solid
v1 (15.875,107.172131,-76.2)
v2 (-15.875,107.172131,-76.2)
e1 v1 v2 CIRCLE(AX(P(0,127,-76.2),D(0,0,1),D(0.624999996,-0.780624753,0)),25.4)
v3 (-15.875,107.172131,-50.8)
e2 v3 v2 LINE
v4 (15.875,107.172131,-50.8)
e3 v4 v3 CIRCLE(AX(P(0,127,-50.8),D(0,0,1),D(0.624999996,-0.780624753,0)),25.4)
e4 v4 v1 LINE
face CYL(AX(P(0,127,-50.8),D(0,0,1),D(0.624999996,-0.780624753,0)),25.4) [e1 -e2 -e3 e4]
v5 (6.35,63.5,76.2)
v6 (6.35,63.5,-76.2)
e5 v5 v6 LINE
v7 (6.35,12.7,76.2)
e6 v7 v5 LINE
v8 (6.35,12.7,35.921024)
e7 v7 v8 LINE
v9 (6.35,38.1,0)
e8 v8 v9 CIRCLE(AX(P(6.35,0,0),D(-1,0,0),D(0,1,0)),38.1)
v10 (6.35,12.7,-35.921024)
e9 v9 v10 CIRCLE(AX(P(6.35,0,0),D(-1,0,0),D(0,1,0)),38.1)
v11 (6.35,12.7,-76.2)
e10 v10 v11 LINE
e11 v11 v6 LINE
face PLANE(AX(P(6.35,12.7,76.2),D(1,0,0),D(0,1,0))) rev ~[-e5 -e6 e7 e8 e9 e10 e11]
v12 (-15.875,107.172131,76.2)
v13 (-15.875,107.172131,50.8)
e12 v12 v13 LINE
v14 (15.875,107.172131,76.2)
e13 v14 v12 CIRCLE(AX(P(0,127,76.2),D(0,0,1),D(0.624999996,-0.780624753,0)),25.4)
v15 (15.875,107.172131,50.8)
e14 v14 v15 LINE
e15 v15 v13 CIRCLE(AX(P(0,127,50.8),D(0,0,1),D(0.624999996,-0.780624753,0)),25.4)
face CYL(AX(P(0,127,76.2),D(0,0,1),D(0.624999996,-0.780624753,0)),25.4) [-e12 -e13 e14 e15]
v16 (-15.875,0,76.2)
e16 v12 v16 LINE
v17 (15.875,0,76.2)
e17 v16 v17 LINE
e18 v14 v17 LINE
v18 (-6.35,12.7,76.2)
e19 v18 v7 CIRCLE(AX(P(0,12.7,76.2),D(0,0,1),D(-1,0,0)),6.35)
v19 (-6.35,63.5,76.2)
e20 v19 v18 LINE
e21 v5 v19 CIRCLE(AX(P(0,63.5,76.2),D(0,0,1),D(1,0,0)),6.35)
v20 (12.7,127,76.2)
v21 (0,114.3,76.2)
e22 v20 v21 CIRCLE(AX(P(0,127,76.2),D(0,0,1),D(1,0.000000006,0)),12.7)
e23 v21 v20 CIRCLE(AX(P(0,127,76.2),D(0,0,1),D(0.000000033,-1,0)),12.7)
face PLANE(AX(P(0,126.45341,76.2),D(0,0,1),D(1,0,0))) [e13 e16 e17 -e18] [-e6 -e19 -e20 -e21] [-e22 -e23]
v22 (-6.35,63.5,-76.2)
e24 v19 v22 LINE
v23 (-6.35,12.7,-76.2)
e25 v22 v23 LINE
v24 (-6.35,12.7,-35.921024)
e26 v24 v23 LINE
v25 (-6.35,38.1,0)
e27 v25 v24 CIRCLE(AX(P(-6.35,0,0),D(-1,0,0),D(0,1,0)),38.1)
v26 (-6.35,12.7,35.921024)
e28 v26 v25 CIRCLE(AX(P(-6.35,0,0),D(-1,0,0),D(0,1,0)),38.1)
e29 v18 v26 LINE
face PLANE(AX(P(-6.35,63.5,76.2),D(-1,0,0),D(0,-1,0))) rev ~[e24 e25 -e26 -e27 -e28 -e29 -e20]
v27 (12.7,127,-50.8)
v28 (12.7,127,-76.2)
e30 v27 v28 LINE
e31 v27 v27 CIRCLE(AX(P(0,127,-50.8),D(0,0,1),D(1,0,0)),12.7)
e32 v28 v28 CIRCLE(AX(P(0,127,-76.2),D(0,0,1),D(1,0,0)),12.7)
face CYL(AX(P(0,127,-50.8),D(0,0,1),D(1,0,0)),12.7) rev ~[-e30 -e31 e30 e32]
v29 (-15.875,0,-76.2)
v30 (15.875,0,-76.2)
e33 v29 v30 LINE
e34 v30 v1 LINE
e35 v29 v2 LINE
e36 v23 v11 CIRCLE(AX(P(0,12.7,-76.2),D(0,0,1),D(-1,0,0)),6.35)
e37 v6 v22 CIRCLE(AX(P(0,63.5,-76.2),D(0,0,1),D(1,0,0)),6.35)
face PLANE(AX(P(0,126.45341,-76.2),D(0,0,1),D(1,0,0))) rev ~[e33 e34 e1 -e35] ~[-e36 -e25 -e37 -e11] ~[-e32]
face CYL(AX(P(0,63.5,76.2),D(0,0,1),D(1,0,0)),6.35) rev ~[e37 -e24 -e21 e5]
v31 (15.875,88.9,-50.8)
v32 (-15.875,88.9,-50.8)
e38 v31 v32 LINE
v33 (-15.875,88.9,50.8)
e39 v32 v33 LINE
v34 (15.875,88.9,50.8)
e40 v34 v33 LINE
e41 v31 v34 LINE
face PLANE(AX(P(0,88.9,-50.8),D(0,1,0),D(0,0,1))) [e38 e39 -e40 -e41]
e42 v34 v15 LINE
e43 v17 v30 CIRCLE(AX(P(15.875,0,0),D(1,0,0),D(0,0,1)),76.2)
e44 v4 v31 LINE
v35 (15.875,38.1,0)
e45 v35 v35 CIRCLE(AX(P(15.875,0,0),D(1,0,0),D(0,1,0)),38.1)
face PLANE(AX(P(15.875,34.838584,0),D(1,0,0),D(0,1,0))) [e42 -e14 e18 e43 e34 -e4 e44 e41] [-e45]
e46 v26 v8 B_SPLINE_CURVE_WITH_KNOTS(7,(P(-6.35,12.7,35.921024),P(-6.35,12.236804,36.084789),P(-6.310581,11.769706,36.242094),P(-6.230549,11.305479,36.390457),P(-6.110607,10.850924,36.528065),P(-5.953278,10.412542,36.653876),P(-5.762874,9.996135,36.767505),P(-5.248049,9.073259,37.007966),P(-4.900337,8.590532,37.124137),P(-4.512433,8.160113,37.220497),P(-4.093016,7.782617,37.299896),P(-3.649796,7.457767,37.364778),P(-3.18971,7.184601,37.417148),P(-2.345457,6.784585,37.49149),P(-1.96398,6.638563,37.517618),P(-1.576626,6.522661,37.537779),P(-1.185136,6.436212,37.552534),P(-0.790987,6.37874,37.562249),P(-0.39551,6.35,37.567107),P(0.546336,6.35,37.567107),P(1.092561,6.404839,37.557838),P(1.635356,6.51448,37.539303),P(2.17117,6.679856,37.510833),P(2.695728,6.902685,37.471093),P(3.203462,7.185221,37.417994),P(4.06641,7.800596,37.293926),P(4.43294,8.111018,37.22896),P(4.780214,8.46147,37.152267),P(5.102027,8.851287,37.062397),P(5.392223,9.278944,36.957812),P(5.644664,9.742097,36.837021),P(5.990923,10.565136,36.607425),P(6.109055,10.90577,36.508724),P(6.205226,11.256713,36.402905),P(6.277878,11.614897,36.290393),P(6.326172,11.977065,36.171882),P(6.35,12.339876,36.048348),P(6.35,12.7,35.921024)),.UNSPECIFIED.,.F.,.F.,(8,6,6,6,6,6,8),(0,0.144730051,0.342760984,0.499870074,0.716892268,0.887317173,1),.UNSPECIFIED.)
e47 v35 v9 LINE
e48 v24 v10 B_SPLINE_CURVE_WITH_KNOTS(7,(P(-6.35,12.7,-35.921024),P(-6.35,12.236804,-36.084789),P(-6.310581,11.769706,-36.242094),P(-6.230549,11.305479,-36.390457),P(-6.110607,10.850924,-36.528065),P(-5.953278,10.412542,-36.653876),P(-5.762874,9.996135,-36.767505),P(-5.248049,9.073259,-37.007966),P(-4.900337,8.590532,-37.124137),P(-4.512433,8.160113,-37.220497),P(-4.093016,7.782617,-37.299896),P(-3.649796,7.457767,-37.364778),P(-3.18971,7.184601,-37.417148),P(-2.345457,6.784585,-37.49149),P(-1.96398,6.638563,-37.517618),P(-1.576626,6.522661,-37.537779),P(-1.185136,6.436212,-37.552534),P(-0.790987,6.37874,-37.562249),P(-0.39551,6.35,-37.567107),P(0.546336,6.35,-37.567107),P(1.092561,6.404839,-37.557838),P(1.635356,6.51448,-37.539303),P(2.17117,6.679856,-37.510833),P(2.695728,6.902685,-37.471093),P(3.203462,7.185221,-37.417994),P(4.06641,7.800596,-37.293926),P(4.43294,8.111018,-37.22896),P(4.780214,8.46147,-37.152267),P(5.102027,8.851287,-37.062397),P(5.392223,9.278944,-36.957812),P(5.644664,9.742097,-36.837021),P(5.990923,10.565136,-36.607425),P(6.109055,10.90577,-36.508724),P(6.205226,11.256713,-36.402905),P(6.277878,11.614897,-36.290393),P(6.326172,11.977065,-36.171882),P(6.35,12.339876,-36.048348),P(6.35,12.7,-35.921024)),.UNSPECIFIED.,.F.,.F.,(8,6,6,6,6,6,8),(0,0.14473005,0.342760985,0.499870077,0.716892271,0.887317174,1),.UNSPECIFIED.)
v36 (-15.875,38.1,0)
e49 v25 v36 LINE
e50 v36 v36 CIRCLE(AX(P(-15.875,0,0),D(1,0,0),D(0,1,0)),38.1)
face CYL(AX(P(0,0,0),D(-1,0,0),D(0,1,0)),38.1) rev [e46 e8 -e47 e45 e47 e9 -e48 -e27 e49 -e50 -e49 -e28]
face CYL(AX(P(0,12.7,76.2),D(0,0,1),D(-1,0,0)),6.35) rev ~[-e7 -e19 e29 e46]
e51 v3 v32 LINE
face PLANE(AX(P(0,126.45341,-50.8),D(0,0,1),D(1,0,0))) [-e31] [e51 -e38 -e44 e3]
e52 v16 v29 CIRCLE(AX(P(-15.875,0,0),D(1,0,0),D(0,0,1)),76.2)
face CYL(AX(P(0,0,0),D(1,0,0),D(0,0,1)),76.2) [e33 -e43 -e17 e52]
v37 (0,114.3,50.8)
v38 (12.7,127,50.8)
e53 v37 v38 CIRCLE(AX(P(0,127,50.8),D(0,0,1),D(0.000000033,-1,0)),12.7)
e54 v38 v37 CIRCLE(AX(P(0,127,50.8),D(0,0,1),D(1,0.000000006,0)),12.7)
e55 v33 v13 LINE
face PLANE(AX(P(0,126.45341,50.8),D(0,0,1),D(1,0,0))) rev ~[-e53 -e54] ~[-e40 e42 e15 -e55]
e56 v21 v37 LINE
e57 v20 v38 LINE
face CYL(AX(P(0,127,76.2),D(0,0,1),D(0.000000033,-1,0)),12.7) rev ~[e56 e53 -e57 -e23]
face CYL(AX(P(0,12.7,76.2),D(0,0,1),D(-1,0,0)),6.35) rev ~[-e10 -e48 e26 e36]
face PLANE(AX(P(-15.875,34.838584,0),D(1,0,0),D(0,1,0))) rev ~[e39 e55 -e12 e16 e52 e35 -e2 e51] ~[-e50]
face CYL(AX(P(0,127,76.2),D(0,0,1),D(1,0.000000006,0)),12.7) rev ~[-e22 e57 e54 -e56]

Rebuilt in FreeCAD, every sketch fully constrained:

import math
import FreeCAD as App
import Part
import Sketcher
from FreeCAD import Vector
Q = App.Units.Quantity

doc = App.newDocument("Part")
body = doc.addObject("PartDesign::Body", "Body")

# Sketch on YZ plane
sketch1 = body.newObject("Sketcher::SketchObject", "Sketch")
sketch1.AttachmentSupport = (doc.getObject("YZ_Plane"), [""])
sketch1.MapMode = "FlatFace"
sketch1.addGeometry([
    Part.LineSegment(Vector(114.3, 76.2, 0), Vector(0, 76.2, 0)),  # 0
    Part.ArcOfCircle(Part.Circle(Vector(0, 0, 0), Vector(0, 0, 1), 76.2), math.radians(90), math.radians(270)),  # 1
    Part.LineSegment(Vector(0, -76.2, 0), Vector(114.3, -76.2, 0)),  # 2
    Part.LineSegment(Vector(114.3, -76.2, 0), Vector(114.3, -50.8, 0)),  # 3
    Part.LineSegment(Vector(114.3, -50.8, 0), Vector(88.9, -50.8, 0)),  # 4
    Part.LineSegment(Vector(88.9, -50.8, 0), Vector(88.9, 50.8, 0)),  # 5
    Part.LineSegment(Vector(88.9, 50.8, 0), Vector(114.3, 50.8, 0)),  # 6
    Part.LineSegment(Vector(114.3, 50.8, 0), Vector(114.3, 76.2, 0)),  # 7
    Part.Circle(Vector(0, 0, 0), Vector(0, 0, 1), 38.1),  # 8
], False)
sketch1.addConstraint([
    Sketcher.Constraint("Tangent", 0, 2, 1, 1),
    Sketcher.Constraint("Tangent", 1, 2, 2, 1),
    Sketcher.Constraint("Coincident", 2, 2, 3, 1),
    Sketcher.Constraint("Coincident", 3, 2, 4, 1),
    Sketcher.Constraint("Coincident", 4, 2, 5, 1),
    Sketcher.Constraint("Coincident", 5, 2, 6, 1),
    Sketcher.Constraint("Coincident", 6, 2, 7, 1),
    Sketcher.Constraint("Coincident", 7, 2, 0, 1),
    Sketcher.Constraint("Horizontal", 0),
    Sketcher.Constraint("Horizontal", 2),
    Sketcher.Constraint("Vertical", 3),
    Sketcher.Constraint("Horizontal", 4),
    Sketcher.Constraint("Vertical", 5),
    Sketcher.Constraint("Horizontal", 6),
    Sketcher.Constraint("Vertical", 7),
    Sketcher.Constraint("Coincident", 1, 3, -1, 1),
    Sketcher.Constraint("Coincident", 8, 3, -1, 1),
    Sketcher.Constraint("Symmetric", 3, 2, 6, 2, -1),
    Sketcher.Constraint("Equal", 6, 3),
    Sketcher.Constraint("Diameter", 8, Q("3 in")),
    Sketcher.Constraint("Radius", 1, Q("3 in")),
    Sketcher.Constraint("DistanceX", 4, 2, 4, 1, Q("1 in")),
    Sketcher.Constraint("DistanceX", 0, 2, 0, 1, Q("4.5 in")),
])
pad1 = body.newObject("PartDesign::Pad", "Pad")
pad1.Profile = sketch1
pad1.Type = "TwoLengths"
pad1.Length = Q("0.625 in")
pad1.Length2 = Q("0.625 in")

# Sketch on XY plane
sketch2 = body.newObject("Sketcher::SketchObject", "Sketch001")
sketch2.AttachmentSupport = (doc.getObject("XY_Plane"), [""])
sketch2.MapMode = "FlatFace"
sketch2.AttachmentOffset = App.Placement(Vector(0, 0, 3 * 25.4), App.Rotation())
sketch2.addGeometry([
    Part.LineSegment(Vector(-15.875, 114.3, 0), Vector(15.875, 114.3, 0)),
    Part.LineSegment(Vector(15.875, 114.3, 0), Vector(15.875, 107.172131, 0)),
    Part.ArcOfCircle(Part.Circle(Vector(0, 127, 0), Vector(0, 0, 1), 25.4), math.radians(-51.317813), math.radians(231.317813)),
    Part.LineSegment(Vector(-15.875, 107.172131, 0), Vector(-15.875, 114.3, 0)),
], False)
sketch2.addConstraint([
    Sketcher.Constraint("Coincident", 0, 2, 1, 1),
    Sketcher.Constraint("Coincident", 1, 2, 2, 1),
    Sketcher.Constraint("Coincident", 2, 2, 3, 1),
    Sketcher.Constraint("Coincident", 3, 2, 0, 1),
    Sketcher.Constraint("Horizontal", 0),
    Sketcher.Constraint("Vertical", 1),
    Sketcher.Constraint("Vertical", 3),
    Sketcher.Constraint("Symmetric", 1, 2, 2, 2, -2),
    Sketcher.Constraint("Radius", 2, Q("1 in")),
    Sketcher.Constraint("DistanceY", -1, 1, 2, 3, Q("5 in")),
    Sketcher.Constraint("DistanceX", 0, 1, 0, 2, Q("1.25 in")),
    Sketcher.Constraint("DistanceY", -1, 1, 0, 2, Q("4.5 in")),
])
pad2 = body.newObject("PartDesign::Pad", "Pad001")
pad2.Profile = sketch2
pad2.Length = Q("1 in")
pad2.Reversed = True

# Sketch on XY plane
sketch3 = body.newObject("Sketcher::SketchObject", "Sketch002")
sketch3.AttachmentSupport = (doc.getObject("XY_Plane"), [""])
sketch3.MapMode = "FlatFace"
sketch3.AttachmentOffset = App.Placement(Vector(0, 0, 3 * 25.4), App.Rotation())
sketch3.addGeometry([
    Part.ArcOfCircle(Part.Circle(Vector(0, 127, 0), Vector(0, 0, 1), 12.7), math.radians(0), math.radians(270)),
    Part.ArcOfCircle(Part.Circle(Vector(0, 127, 0), Vector(0, 0, 1), 12.7), math.radians(-89.999998), math.radians(-0.000002)),
], False)
sketch3.addConstraint([
    Sketcher.Constraint("Tangent", 0, 1, 1, 2),
    Sketcher.Constraint("Coincident", 1, 1, 0, 2),
    Sketcher.Constraint("PointOnObject", 0, 3, -2),
    Sketcher.Constraint("PointOnObject", 1, 1, -2),
    Sketcher.Constraint("Horizontal", 1, 3, 0, 1),
    Sketcher.Constraint("Radius", 0, Q("0.5 in")),
    Sketcher.Constraint("DistanceY", -1, 1, 0, 3, Q("5 in")),
])
pocket1 = body.newObject("PartDesign::Pocket", "Pocket")
pocket1.Profile = sketch3
pocket1.Type = "ThroughAll"

# Sketch on XY plane
sketch4 = body.newObject("Sketcher::SketchObject", "Sketch003")
sketch4.AttachmentSupport = (doc.getObject("XY_Plane"), [""])
sketch4.MapMode = "FlatFace"
sketch4.AttachmentOffset = App.Placement(Vector(0, 0, -2 * 25.4), App.Rotation())
sketch4.addGeometry([
    Part.LineSegment(Vector(15.875, 114.3, 0), Vector(15.875, 107.172131, 0)),
    Part.ArcOfCircle(Part.Circle(Vector(0, 127, 0), Vector(0, 0, 1), 25.4), math.radians(-51.317813), math.radians(231.317813)),
    Part.LineSegment(Vector(-15.875, 107.172131, 0), Vector(-15.875, 114.3, 0)),
    Part.LineSegment(Vector(-15.875, 114.3, 0), Vector(15.875, 114.3, 0)),
], False)
sketch4.addConstraint([
    Sketcher.Constraint("Coincident", 0, 2, 1, 1),
    Sketcher.Constraint("Coincident", 1, 2, 2, 1),
    Sketcher.Constraint("Coincident", 2, 2, 3, 1),
    Sketcher.Constraint("Coincident", 3, 2, 0, 1),
    Sketcher.Constraint("Vertical", 0),
    Sketcher.Constraint("Vertical", 2),
    Sketcher.Constraint("Horizontal", 3),
    Sketcher.Constraint("Symmetric", 0, 2, 1, 2, -2),
    Sketcher.Constraint("Radius", 1, Q("1 in")),
    Sketcher.Constraint("DistanceY", -1, 1, 1, 3, Q("5 in")),
    Sketcher.Constraint("DistanceX", 3, 1, 3, 2, Q("1.25 in")),
    Sketcher.Constraint("DistanceY", -1, 1, 2, 2, Q("4.5 in")),
])
pad3 = body.newObject("PartDesign::Pad", "Pad002")
pad3.Profile = sketch4
pad3.Length = Q("1 in")
pad3.Reversed = True

# Sketch on XY plane
sketch5 = body.newObject("Sketcher::SketchObject", "Sketch004")
sketch5.AttachmentSupport = (doc.getObject("XY_Plane"), [""])
sketch5.MapMode = "FlatFace"
sketch5.AttachmentOffset = App.Placement(Vector(0, 0, -2 * 25.4), App.Rotation())
sketch5.addGeometry(Part.Circle(Vector(0, 127, 0), Vector(0, 0, 1), 12.7), False)
sketch5.addConstraint([
    Sketcher.Constraint("PointOnObject", 0, 3, -2),
    Sketcher.Constraint("Diameter", 0, Q("1 in")),
    Sketcher.Constraint("DistanceY", -1, 1, 0, 3, Q("5 in")),
])
pocket2 = body.newObject("PartDesign::Pocket", "Pocket001")
pocket2.Profile = sketch5
pocket2.Type = "ThroughAll"

# Sketch on XY plane
sketch6 = body.newObject("Sketcher::SketchObject", "Sketch005")
sketch6.AttachmentSupport = (doc.getObject("XY_Plane"), [""])
sketch6.MapMode = "FlatFace"
sketch6.AttachmentOffset = App.Placement(Vector(0, 0, 3 * 25.4), App.Rotation())
sketch6.addGeometry([
    Part.LineSegment(Vector(6.35, 12.7, 0), Vector(6.35, 63.5, 0)),
    Part.ArcOfCircle(Part.Circle(Vector(0, 63.5, 0), Vector(0, 0, 1), 6.35), math.radians(0), math.radians(180)),
    Part.LineSegment(Vector(-6.35, 63.5, 0), Vector(-6.35, 12.7, 0)),
    Part.ArcOfCircle(Part.Circle(Vector(0, 12.7, 0), Vector(0, 0, 1), 6.35), math.radians(180), math.radians(360)),
], False)
sketch6.addConstraint([
    Sketcher.Constraint("Tangent", 0, 2, 1, 1),
    Sketcher.Constraint("Tangent", 1, 2, 2, 1),
    Sketcher.Constraint("Tangent", 2, 2, 3, 1),
    Sketcher.Constraint("Tangent", 3, 2, 0, 1),
    Sketcher.Constraint("Vertical", 0),
    Sketcher.Constraint("Vertical", 2),
    Sketcher.Constraint("PointOnObject", 1, 3, -2),
    Sketcher.Constraint("DistanceY", 0, 1, 0, 2, Q("2 in")),
    Sketcher.Constraint("Radius", 1, Q("0.25 in")),
    Sketcher.Constraint("DistanceY", -1, 1, 1, 3, Q("2.5 in")),
])
pocket3 = body.newObject("PartDesign::Pocket", "Pocket002")
pocket3.Profile = sketch6
pocket3.Type = "ThroughAll"

doc.recompute()
